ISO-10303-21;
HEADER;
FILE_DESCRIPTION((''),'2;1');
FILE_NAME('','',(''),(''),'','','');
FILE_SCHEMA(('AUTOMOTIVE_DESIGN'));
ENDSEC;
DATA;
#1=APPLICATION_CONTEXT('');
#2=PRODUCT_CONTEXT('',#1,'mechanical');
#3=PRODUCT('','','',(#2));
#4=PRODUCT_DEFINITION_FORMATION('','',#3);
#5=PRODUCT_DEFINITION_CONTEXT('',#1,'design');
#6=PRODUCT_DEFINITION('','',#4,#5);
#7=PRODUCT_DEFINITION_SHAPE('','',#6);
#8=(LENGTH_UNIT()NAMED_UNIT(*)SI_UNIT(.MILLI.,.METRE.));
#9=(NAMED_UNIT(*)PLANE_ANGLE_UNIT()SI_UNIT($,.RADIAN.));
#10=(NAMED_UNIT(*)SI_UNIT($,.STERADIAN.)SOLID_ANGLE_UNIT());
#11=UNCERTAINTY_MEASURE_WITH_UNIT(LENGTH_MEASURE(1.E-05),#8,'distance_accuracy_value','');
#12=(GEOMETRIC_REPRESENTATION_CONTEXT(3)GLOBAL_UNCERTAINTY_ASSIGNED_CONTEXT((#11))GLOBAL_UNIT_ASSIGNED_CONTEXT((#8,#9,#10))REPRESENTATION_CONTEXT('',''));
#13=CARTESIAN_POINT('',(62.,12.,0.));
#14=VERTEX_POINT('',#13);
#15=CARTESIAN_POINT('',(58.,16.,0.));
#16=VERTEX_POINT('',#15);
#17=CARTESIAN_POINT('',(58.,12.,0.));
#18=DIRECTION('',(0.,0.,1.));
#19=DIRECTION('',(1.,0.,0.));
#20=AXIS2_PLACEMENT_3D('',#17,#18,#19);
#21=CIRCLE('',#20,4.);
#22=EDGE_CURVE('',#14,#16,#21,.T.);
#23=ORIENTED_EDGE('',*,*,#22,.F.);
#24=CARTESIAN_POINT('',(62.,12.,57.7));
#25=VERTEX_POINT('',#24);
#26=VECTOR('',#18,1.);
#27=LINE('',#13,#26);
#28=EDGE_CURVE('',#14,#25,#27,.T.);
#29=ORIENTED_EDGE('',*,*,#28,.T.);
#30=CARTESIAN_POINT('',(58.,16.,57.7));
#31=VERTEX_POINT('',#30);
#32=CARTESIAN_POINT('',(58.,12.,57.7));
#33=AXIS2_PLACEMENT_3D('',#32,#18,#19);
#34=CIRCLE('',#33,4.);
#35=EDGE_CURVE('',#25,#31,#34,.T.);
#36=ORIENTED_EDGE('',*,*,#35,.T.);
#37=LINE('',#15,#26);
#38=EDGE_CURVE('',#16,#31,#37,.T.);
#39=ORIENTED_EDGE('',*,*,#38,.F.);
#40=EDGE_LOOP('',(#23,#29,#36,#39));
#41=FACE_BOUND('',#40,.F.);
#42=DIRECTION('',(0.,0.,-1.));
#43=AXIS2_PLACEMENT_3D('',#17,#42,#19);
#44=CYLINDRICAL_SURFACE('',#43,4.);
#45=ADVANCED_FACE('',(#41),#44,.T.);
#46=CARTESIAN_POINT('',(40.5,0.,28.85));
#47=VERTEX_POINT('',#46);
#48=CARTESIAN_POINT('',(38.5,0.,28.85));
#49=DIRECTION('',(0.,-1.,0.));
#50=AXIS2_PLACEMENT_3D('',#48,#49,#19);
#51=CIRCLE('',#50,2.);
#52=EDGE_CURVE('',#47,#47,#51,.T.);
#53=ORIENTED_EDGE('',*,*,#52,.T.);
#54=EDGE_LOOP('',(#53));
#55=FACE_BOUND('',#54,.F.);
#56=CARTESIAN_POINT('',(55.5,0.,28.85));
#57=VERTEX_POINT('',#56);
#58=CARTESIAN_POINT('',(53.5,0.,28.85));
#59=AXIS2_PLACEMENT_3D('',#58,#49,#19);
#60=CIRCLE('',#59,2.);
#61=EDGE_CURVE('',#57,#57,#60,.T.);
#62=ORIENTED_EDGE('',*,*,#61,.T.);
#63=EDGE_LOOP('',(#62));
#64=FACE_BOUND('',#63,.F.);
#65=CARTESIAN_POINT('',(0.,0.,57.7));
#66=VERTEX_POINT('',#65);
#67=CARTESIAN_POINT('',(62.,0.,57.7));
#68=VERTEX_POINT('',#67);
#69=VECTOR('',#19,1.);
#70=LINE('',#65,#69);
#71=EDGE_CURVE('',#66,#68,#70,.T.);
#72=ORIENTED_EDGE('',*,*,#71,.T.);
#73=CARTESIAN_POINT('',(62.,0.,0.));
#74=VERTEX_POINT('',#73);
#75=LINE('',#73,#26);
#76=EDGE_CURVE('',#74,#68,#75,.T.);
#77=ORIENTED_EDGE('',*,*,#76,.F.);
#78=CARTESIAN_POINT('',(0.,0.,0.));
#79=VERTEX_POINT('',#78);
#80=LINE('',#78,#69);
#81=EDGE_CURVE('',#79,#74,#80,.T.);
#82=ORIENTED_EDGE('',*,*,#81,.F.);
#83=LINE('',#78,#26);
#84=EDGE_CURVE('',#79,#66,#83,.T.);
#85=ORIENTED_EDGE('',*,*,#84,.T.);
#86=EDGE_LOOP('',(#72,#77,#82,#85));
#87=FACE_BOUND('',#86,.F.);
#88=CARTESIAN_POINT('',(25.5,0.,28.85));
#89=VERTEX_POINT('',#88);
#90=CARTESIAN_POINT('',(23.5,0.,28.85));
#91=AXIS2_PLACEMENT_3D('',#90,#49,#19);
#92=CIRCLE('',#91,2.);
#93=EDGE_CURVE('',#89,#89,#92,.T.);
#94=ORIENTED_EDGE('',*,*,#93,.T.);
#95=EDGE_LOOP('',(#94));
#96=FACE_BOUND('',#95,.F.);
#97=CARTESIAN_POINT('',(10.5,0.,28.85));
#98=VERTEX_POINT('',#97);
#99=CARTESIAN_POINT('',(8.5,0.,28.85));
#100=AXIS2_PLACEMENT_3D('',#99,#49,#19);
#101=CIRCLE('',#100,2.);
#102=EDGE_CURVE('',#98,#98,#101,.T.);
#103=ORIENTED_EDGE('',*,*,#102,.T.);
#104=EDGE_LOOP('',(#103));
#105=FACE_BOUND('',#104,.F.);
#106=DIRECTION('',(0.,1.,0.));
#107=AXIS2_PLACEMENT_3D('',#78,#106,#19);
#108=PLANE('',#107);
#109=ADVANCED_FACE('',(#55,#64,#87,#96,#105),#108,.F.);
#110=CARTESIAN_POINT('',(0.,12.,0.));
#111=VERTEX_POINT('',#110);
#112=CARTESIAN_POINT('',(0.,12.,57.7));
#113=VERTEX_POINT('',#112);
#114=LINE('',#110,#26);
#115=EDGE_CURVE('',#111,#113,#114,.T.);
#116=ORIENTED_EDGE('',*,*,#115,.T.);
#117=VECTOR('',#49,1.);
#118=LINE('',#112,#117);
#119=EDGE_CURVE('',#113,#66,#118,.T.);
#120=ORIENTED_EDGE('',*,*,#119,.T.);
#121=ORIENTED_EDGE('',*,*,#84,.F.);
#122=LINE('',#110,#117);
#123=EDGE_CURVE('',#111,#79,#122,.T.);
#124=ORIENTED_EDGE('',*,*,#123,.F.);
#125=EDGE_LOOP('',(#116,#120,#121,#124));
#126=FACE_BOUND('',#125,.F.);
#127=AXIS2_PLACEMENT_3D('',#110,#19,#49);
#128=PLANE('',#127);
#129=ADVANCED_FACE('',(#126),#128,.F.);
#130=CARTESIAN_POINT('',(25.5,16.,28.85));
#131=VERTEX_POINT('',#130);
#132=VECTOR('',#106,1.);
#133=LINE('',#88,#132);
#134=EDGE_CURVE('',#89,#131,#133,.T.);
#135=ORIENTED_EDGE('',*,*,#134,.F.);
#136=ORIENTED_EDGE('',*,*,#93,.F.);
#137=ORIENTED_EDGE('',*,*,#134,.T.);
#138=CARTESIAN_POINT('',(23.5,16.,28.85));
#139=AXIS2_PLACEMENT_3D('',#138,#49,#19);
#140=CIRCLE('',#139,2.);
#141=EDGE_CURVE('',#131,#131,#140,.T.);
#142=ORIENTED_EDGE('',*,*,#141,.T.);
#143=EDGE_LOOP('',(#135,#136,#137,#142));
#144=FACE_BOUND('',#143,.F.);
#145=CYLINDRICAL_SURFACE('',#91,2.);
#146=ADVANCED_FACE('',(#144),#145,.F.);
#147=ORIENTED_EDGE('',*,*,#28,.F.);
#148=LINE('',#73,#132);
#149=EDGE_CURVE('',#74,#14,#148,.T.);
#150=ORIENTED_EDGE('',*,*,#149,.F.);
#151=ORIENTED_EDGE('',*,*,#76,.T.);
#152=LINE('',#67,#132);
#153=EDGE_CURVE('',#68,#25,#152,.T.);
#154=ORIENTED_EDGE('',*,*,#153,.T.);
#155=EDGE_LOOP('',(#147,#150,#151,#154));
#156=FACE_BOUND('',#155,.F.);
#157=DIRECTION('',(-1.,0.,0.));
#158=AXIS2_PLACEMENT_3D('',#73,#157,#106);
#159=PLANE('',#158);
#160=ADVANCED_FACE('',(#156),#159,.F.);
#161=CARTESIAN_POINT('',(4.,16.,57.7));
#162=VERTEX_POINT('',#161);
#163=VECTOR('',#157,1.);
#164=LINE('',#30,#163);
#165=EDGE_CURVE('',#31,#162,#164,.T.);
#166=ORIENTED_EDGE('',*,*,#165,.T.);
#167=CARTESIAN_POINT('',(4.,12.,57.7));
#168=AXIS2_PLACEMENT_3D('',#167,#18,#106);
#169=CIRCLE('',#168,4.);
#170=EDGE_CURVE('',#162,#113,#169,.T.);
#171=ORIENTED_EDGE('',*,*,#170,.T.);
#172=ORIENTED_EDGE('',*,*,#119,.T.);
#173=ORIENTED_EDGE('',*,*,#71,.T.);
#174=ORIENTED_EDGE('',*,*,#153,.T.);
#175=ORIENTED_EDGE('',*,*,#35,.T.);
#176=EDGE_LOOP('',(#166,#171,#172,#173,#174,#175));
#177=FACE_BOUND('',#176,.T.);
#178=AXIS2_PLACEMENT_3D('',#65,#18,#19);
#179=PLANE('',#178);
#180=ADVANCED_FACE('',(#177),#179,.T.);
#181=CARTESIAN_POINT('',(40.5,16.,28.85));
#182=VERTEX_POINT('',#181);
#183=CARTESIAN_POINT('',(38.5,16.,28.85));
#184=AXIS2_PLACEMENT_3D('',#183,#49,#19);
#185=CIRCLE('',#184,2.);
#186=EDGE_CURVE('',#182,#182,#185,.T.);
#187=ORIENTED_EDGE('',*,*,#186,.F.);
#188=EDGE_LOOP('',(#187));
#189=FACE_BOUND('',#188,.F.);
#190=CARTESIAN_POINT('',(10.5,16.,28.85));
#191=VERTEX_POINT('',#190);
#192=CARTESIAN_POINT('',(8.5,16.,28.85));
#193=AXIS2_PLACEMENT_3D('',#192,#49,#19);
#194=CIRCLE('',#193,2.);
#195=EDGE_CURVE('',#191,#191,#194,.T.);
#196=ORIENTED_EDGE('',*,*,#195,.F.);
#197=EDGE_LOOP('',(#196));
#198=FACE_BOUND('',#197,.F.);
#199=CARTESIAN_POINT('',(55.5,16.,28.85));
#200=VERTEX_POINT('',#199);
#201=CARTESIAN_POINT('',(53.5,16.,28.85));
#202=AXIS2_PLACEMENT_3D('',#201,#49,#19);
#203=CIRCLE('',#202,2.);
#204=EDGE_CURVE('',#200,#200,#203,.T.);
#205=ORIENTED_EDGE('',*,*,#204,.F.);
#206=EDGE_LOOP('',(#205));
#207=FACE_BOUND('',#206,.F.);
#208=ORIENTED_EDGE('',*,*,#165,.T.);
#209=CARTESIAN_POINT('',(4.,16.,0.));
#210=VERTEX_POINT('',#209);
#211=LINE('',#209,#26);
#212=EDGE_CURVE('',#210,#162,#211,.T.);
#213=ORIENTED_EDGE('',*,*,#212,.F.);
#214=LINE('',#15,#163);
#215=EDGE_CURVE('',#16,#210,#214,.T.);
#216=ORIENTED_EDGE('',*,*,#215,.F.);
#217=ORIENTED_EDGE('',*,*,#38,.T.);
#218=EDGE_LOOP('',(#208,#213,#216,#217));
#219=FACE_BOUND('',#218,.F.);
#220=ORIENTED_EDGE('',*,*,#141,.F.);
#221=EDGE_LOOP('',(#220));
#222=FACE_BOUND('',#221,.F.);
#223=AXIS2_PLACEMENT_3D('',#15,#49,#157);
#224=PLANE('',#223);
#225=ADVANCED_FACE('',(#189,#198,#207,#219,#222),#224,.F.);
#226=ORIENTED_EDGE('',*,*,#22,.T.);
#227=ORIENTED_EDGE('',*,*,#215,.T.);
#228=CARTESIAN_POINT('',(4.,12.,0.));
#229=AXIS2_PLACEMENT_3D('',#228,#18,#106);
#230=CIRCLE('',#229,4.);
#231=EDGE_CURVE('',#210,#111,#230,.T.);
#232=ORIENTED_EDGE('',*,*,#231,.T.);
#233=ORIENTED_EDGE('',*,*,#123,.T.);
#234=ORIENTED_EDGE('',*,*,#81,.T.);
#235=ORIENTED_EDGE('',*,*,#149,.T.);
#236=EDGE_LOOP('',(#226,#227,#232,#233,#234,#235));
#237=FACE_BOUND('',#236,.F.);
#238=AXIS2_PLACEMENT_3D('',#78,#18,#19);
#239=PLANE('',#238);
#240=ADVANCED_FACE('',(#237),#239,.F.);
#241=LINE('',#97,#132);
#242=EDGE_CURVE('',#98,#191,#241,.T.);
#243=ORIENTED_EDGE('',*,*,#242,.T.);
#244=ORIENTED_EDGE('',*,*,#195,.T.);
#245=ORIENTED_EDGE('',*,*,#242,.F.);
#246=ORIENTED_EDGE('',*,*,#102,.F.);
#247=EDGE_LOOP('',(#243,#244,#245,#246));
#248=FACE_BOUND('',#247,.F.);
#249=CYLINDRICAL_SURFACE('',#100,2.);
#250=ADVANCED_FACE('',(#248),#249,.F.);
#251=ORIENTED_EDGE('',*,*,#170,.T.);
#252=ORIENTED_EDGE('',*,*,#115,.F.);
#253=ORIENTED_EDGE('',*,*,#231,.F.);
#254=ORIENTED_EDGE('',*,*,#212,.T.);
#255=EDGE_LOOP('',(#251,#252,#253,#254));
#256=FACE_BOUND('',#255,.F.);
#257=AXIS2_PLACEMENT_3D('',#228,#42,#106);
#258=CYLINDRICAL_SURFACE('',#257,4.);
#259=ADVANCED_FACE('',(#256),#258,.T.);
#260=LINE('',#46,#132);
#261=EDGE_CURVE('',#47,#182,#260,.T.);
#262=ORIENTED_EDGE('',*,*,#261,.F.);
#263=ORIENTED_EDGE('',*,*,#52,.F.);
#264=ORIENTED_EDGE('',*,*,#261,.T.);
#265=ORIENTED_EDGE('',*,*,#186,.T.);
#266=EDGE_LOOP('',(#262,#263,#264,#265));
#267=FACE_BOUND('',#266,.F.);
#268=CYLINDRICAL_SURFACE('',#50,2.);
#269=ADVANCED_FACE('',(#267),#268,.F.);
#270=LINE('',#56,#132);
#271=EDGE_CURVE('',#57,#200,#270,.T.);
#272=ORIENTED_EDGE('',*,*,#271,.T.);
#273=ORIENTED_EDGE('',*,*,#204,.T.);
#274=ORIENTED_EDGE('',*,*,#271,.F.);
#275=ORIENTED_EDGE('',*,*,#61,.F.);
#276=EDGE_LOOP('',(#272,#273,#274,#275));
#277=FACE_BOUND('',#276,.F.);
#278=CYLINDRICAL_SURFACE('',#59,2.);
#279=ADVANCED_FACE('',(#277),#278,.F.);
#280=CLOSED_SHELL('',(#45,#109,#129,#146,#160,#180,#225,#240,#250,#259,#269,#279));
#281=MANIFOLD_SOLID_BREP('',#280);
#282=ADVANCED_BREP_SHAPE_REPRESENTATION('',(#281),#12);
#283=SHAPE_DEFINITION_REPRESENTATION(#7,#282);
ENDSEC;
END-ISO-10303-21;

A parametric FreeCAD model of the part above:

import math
import FreeCAD as App
import Part
import Sketcher

V = App.Vector

doc = App.newDocument("Part")
body = doc.addObject("PartDesign::Body", "Body")

sketch1 = doc.addObject("Sketcher::SketchObject", "Sketch")
body.addObject(sketch1)
sketch1.AttachmentSupport = (doc.XY_Plane, [""])
sketch1.MapMode = "FlatFace"
sketch1.addGeometry(Part.LineSegment(V(0, 12, 0), V(0, 0, 0)), False)
sketch1.addGeometry(Part.LineSegment(V(0, 0, 0), V(62, 0, 0)), False)
sketch1.addGeometry(Part.LineSegment(V(62, 0, 0), V(62, 12, 0)), False)
sketch1.addGeometry(Part.ArcOfCircle(Part.Circle(V(58, 12, 0), V(0, 0, 1), 4), math.radians(0), math.radians(90)), False)
sketch1.addGeometry(Part.LineSegment(V(58, 16, 0), V(4, 16, 0)), False)
sketch1.addGeometry(Part.ArcOfCircle(Part.Circle(V(4, 12, 0), V(0, 0, 1), 4), math.radians(90), math.radians(180)), False)
sketch1.addConstraint(Sketcher.Constraint("Coincident", 0, 2, 1, 1))
sketch1.addConstraint(Sketcher.Constraint("Coincident", 1, 2, 2, 1))
sketch1.addConstraint(Sketcher.Constraint("Tangent", 2, 2, 3, 1))
sketch1.addConstraint(Sketcher.Constraint("Tangent", 3, 2, 4, 1))
sketch1.addConstraint(Sketcher.Constraint("Tangent", 4, 2, 5, 1))
sketch1.addConstraint(Sketcher.Constraint("Tangent", 5, 2, 0, 1))
sketch1.addConstraint(Sketcher.Constraint("Vertical", 0))
sketch1.addConstraint(Sketcher.Constraint("Horizontal", 1))
sketch1.addConstraint(Sketcher.Constraint("Vertical", 2))
sketch1.addConstraint(Sketcher.Constraint("Horizontal", 4))
sketch1.addConstraint(Sketcher.Constraint("Coincident", 0, 2, -1, 1))
sketch1.addConstraint(Sketcher.Constraint("Equal", 3, 5))
sketch1.addConstraint(Sketcher.Constraint("Radius", 3, 4.0))
sketch1.addConstraint(Sketcher.Constraint("DistanceX", 1, 1, 1, 2, 62.0))
sketch1.addConstraint(Sketcher.Constraint("DistanceY", -1, 1, 3, 2, 16.0))
pad1 = doc.addObject("PartDesign::Pad", "Pad")
body.addObject(pad1)
pad1.Profile = sketch1
pad1.Length = 57.7

sketch2 = doc.addObject("Sketcher::SketchObject", "Sketch001")
body.addObject(sketch2)
sketch2.AttachmentSupport = (doc.XZ_Plane, [""])
sketch2.MapMode = "FlatFace"
sketch2.addGeometry(Part.Circle(V(53.5, 28.9, 0), V(0, 0, 1), 2), False)
sketch2.addGeometry(Part.Circle(V(8.5, 28.9, 0), V(0, 0, 1), 2), False)
sketch2.addGeometry(Part.Circle(V(38.5, 28.9, 0), V(0, 0, 1), 2), False)
sketch2.addGeometry(Part.Circle(V(23.5, 28.9, 0), V(0, 0, 1), 2), False)
sketch2.addConstraint(Sketcher.Constraint("Equal", 0, 1))
sketch2.addConstraint(Sketcher.Constraint("Equal", 1, 2))
sketch2.addConstraint(Sketcher.Constraint("Equal", 2, 3))
sketch2.addConstraint(Sketcher.Constraint("Horizontal", 0, 3, 1, 3))
sketch2.addConstraint(Sketcher.Constraint("Horizontal", 1, 3, 2, 3))
sketch2.addConstraint(Sketcher.Constraint("Horizontal", 2, 3, 3, 3))
sketch2.addConstraint(Sketcher.Constraint("Diameter", 0, 4.0))
sketch2.addConstraint(Sketcher.Constraint("DistanceX", 1, 3, 0, 3, 45.0))
sketch2.addConstraint(Sketcher.Constraint("DistanceX", 2, 3, 0, 3, 15.0))
sketch2.addConstraint(Sketcher.Constraint("DistanceX", 1, 3, 3, 3, 15.0))
sketch2.addConstraint(Sketcher.Constraint("DistanceX", -1, 1, 0, 3, 53.5))
sketch2.addConstraint(Sketcher.Constraint("DistanceY", -1, 1, 0, 3, 28.85))
pocket1 = doc.addObject("PartDesign::Pocket", "Pocket")
body.addObject(pocket1)
pocket1.Profile = sketch2
pocket1.Type = "ThroughAll"

doc.recompute()
